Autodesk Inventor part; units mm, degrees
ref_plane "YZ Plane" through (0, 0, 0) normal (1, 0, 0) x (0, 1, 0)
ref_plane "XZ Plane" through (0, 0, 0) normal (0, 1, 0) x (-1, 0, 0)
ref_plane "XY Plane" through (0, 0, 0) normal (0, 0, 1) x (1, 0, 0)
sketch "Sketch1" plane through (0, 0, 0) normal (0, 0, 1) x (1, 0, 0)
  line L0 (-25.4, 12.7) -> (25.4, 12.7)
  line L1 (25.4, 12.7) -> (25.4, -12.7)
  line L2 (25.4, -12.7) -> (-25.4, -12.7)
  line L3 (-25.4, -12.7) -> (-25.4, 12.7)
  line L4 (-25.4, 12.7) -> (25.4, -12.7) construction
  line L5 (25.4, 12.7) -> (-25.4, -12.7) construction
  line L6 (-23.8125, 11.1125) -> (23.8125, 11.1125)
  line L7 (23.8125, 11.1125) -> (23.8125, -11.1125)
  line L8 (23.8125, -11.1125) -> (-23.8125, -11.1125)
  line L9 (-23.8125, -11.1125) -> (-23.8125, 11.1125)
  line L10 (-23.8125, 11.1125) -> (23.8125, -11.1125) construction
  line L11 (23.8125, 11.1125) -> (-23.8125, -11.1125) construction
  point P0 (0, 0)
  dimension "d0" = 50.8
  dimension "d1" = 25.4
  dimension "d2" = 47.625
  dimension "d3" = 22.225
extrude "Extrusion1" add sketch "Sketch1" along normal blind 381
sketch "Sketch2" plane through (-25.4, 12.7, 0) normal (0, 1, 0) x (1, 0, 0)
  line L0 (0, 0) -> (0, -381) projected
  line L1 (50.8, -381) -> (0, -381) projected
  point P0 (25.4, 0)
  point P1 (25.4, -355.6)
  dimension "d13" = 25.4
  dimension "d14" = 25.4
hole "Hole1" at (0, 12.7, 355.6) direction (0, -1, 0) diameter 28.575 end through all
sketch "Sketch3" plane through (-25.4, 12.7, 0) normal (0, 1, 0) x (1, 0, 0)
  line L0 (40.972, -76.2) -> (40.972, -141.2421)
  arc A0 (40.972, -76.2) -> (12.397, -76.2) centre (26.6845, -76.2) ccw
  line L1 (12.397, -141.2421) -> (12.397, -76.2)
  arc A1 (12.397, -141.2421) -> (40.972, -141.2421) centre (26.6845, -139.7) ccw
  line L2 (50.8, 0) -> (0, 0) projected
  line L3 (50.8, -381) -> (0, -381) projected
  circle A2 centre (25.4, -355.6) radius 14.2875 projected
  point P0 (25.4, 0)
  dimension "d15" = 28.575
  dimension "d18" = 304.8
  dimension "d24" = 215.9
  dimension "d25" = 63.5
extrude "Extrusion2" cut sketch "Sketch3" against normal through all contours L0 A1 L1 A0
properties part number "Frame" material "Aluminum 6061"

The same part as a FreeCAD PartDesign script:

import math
import FreeCAD as App
import Part
import Sketcher
from FreeCAD import Vector
Q = App.Units.Quantity

doc = App.newDocument("Part")
body = doc.addObject("PartDesign::Body", "Body")

# Sketch on XY plane
sketch1 = body.newObject("Sketcher::SketchObject", "Sketch")
sketch1.AttachmentSupport = (doc.getObject("XY_Plane"), [""])
sketch1.MapMode = "FlatFace"
sketch1.addGeometry([
    Part.LineSegment(Vector(25, 13, 0), Vector(-25, 13, 0)),  # 0
    Part.LineSegment(Vector(-25, 13, 0), Vector(-25, -13, 0)),  # 1
    Part.LineSegment(Vector(-25, -13, 0), Vector(25, -13, 0)),  # 2
    Part.LineSegment(Vector(25, -13, 0), Vector(25, 13, 0)),  # 3
    Part.LineSegment(Vector(-24, -11, 0), Vector(-24, 11, 0)),  # 4
    Part.LineSegment(Vector(-24, 11, 0), Vector(24, 11, 0)),  # 5
    Part.LineSegment(Vector(24, 11, 0), Vector(24, -11, 0)),  # 6
    Part.LineSegment(Vector(24, -11, 0), Vector(-24, -11, 0)),  # 7
], False)
sketch1.addConstraint([
    Sketcher.Constraint("Coincident", 0, 2, 1, 1),
    Sketcher.Constraint("Coincident", 1, 2, 2, 1),
    Sketcher.Constraint("Coincident", 2, 2, 3, 1),
    Sketcher.Constraint("Coincident", 3, 2, 0, 1),
    Sketcher.Constraint("Coincident", 4, 2, 5, 1),
    Sketcher.Constraint("Coincident", 5, 2, 6, 1),
    Sketcher.Constraint("Coincident", 6, 2, 7, 1),
    Sketcher.Constraint("Coincident", 7, 2, 4, 1),
    Sketcher.Constraint("Horizontal", 0),
    Sketcher.Constraint("Vertical", 1),
    Sketcher.Constraint("Horizontal", 2),
    Sketcher.Constraint("Vertical", 3),
    Sketcher.Constraint("Vertical", 4),
    Sketcher.Constraint("Horizontal", 5),
    Sketcher.Constraint("Vertical", 6),
    Sketcher.Constraint("Horizontal", 7),
    Sketcher.Constraint("Symmetric", 0, 2, 2, 2, -1, 1),
    Sketcher.Constraint("Symmetric", 4, 2, 6, 2, -1, 1),
    Sketcher.Constraint("DistanceX", 0, 2, 0, 1, Q("2 in")),
    Sketcher.Constraint("DistanceY", 1, 2, 1, 1, Q("1 in")),
    Sketcher.Constraint("DistanceX", 5, 1, 5, 2, Q("1.875 in")),
    Sketcher.Constraint("DistanceY", 4, 1, 4, 2, Q("0.875 in")),
])
pad1 = body.newObject("PartDesign::Pad", "Pad")
pad1.Profile = sketch1
pad1.Length = Q("15 in")

# Sketch on XZ plane
sketch2 = body.newObject("Sketcher::SketchObject", "Sketch001")
sketch2.AttachmentSupport = (doc.getObject("XZ_Plane"), [""])
sketch2.MapMode = "FlatFace"
sketch2.AttachmentOffset = App.Placement(Vector(0, 0, -0.5 * 25.4), App.Rotation())
sketch2.addGeometry(Part.Circle(Vector(0, 356, 0), Vector(0, 0, 1), 14), False)
sketch2.addConstraint([
    Sketcher.Constraint("PointOnObject", 0, 3, -2),
    Sketcher.Constraint("Diameter", 0, Q("1.125 in")),
    Sketcher.Constraint("DistanceY", -1, 1, 0, 3, Q("14 in")),
])
doc.recompute()
hole = body.newObject("PartDesign::Hole", "Hole")
hole.Profile = sketch2
hole.ThreadType = "None"
hole.Diameter = Q("1.125 in")
hole.DepthType = "ThroughAll"
hole.Reversed = True

# Sketch on XZ plane
sketch3 = body.newObject("Sketcher::SketchObject", "Sketch002")
sketch3.AttachmentSupport = (doc.getObject("XZ_Plane"), [""])
sketch3.MapMode = "FlatFace"
sketch3.AttachmentOffset = App.Placement(Vector(0, 0, -0.5 * 25.4), App.Rotation())
sketch3.addGeometry([
    Part.LineSegment(Vector(16, 141, 0), Vector(16, 76, 0)),
    Part.ArcOfCircle(Part.Circle(Vector(1, 76, 0), Vector(0, 0, 1), 14), math.radians(180), math.radians(360)),
    Part.LineSegment(Vector(-13, 76, 0), Vector(-13, 141, 0)),
    Part.ArcOfCircle(Part.Circle(Vector(1, 140, 0), Vector(0, 0, 1), 14), math.radians(6), math.radians(174)),
], False)
sketch3.addConstraint([
    Sketcher.Constraint("Tangent", 0, 2, 1, 2),
    Sketcher.Constraint("Tangent", 1, 1, 2, 1),
    Sketcher.Constraint("Coincident", 2, 2, 3, 2),
    Sketcher.Constraint("Coincident", 3, 1, 0, 1),
    Sketcher.Constraint("Vertical", 0),
    Sketcher.Constraint("Vertical", 2),
    Sketcher.Constraint("Horizontal", 2, 2, 3, 1),
    Sketcher.Constraint("Radius", 1, Q("0.5625 in")),
    Sketcher.Constraint("DistanceY", 1, 3, 3, 3, Q("2.5 in")),
    Sketcher.Constraint("DistanceY", -1, 1, 1, 3, Q("3 in")),
    Sketcher.Constraint("Radius", 3, 14.3705),
    Sketcher.Constraint("DistanceX", -1, 1, 1, 3, 1.2845),
])
pocket1 = body.newObject("PartDesign::Pocket", "Pocket")
pocket1.Profile = sketch3
pocket1.Type = "ThroughAll"
pocket1.Reversed = True

doc.recompute()
